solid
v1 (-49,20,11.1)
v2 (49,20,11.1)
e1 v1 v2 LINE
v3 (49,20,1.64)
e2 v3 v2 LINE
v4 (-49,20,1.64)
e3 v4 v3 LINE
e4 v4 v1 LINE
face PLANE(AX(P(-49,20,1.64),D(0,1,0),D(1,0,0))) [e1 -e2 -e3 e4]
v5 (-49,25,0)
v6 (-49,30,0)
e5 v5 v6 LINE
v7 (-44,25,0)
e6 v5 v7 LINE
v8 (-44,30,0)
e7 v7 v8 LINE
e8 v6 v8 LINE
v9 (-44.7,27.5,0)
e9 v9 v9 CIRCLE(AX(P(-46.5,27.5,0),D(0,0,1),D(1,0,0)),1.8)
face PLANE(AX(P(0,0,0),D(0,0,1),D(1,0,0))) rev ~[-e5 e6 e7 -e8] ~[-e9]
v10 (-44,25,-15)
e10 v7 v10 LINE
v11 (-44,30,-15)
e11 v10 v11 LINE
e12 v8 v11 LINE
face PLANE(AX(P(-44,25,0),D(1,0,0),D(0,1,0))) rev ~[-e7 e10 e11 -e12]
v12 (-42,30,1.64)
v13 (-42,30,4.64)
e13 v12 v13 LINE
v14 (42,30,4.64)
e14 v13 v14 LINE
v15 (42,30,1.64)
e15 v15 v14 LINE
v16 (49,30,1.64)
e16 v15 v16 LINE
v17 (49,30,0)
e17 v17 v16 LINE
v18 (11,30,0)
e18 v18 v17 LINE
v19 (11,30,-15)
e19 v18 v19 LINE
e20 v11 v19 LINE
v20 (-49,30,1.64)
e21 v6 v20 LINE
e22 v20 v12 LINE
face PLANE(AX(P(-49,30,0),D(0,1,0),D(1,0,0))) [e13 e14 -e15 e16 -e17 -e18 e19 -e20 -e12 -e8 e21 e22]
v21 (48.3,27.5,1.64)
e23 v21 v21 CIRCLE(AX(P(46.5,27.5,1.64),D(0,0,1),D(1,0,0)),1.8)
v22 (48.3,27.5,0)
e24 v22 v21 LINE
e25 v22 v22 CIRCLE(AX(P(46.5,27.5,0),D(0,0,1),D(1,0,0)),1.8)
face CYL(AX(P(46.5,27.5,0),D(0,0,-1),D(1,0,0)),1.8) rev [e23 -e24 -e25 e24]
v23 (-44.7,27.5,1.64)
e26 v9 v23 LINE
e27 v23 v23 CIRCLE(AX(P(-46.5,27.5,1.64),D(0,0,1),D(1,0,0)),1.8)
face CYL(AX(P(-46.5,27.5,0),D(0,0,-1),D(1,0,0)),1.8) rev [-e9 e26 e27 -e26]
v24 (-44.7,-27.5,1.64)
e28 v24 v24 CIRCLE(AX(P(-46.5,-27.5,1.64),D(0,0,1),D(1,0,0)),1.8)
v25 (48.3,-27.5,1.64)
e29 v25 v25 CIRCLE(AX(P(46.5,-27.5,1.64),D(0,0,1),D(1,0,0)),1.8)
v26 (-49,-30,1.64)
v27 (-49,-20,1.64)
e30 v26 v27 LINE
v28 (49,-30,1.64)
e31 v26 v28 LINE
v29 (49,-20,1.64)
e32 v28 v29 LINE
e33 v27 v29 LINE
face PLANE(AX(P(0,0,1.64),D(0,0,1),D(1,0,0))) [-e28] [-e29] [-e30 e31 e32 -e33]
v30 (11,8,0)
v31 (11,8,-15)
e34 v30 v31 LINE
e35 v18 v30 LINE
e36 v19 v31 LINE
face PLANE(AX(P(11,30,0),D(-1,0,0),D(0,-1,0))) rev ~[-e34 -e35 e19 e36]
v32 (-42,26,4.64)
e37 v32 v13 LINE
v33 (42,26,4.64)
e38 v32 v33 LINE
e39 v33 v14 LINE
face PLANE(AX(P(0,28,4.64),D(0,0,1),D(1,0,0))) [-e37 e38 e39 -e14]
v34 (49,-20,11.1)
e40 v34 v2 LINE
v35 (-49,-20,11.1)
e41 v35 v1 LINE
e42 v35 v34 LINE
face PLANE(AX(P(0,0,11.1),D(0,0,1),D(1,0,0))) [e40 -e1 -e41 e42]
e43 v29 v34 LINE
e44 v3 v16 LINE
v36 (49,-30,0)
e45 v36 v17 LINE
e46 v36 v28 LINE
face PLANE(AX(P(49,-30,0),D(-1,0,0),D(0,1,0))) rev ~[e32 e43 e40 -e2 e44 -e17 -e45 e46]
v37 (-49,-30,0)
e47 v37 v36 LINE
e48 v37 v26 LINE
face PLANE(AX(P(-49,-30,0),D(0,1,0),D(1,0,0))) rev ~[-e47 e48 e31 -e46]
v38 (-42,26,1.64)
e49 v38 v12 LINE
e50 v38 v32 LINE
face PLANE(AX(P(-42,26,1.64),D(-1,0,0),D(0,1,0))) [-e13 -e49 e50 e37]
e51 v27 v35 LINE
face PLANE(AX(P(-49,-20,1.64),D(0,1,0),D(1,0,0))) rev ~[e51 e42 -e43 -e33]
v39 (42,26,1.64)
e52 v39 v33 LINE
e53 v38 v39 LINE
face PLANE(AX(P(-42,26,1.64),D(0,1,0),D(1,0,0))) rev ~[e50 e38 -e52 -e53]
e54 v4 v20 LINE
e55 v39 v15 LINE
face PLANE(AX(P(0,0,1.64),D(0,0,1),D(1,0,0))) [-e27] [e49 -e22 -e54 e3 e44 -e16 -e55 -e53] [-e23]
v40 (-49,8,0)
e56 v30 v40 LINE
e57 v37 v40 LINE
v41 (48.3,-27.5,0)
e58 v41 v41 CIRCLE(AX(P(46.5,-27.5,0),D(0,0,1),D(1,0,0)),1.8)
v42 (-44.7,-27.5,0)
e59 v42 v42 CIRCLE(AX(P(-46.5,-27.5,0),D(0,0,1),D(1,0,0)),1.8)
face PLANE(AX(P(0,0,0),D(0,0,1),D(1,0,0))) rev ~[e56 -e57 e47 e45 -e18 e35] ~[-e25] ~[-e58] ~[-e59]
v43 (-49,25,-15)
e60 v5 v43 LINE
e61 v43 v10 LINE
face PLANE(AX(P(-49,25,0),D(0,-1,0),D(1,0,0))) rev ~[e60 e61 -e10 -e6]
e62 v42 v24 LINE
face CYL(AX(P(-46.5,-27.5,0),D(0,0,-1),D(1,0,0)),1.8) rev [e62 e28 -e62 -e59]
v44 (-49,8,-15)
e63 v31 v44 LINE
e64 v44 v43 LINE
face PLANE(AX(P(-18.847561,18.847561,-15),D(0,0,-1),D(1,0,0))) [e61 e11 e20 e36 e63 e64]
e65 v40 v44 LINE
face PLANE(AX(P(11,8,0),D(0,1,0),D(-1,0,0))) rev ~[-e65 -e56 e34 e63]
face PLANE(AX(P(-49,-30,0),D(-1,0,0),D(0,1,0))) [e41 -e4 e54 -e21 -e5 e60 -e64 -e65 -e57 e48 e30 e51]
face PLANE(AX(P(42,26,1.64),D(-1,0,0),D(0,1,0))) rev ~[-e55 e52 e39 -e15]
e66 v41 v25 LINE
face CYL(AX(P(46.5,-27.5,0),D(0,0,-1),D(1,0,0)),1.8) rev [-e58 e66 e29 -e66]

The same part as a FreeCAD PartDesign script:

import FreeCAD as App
import Part
import Sketcher

V = App.Vector


def add_polygon(sketch, points):
    """Adds a closed chain of lines whose ends are joined by coincident constraints."""
    first, n = sketch.GeometryCount, len(points)
    for a, b in zip(points, points[1:] + points[:1]):
        sketch.addGeometry(Part.LineSegment(App.Vector(*a, 0), App.Vector(*b, 0)), False)
    for i in range(n):
        sketch.addConstraint(Sketcher.Constraint("Coincident", first + i, 2, first + (i + 1) % n, 1))

doc = App.newDocument("Part")
body = doc.addObject("PartDesign::Body", "Body")

sketch1 = body.newObject("Sketcher::SketchObject", "Sketch")
sketch1.AttachmentSupport = (doc.getObject("XY_Plane"), [""])
sketch1.MapMode = "FlatFace"
add_polygon(sketch1, [(-49, 30), (-49, -30), (49, -30), (49, 30)])
sketch1.addGeometry(Part.Circle(V(-46.5, -27.5, 0), V(0, 0, 1), 1.8), False)
sketch1.addGeometry(Part.Circle(V(46.5, -27.5, 0), V(0, 0, 1), 1.8), False)
sketch1.addGeometry(Part.Circle(V(-46.5, 27.5, 0), V(0, 0, 1), 1.8), False)
sketch1.addGeometry(Part.Circle(V(46.5, 27.5, 0), V(0, 0, 1), 1.8), False)
sketch1.addConstraint([
    Sketcher.Constraint("Vertical", 0),
    Sketcher.Constraint("Horizontal", 1),
    Sketcher.Constraint("Vertical", 2),
    Sketcher.Constraint("Horizontal", 3),
    Sketcher.Constraint("Equal", 4, 5),
    Sketcher.Constraint("Equal", 5, 6),
    Sketcher.Constraint("Equal", 6, 7),
    Sketcher.Constraint("Symmetric", 5, 3, 6, 3, -1, 1),
    Sketcher.Constraint("Symmetric", 4, 3, 7, 3, -1, 1),
    Sketcher.Constraint("Symmetric", 0, 2, 2, 2, -1, 1),
    Sketcher.Constraint("Symmetric", 4, 3, 5, 3, -2),
    Sketcher.Constraint("Diameter", 4, 3.6),
    Sketcher.Constraint("DistanceX", 1, 1, 1, 2, 98.0),
    Sketcher.Constraint("DistanceY", 0, 2, 0, 1, 60.0),
    Sketcher.Constraint("DistanceX", 4, 3, 5, 3, 93.0),
    Sketcher.Constraint("DistanceY", 4, 3, 6, 3, 55.0),
])
pad1 = body.newObject("PartDesign::Pad", "Pad")
pad1.Profile = sketch1
pad1.Length = 1.64

sketch2 = body.newObject("Sketcher::SketchObject", "Sketch001")
sketch2.AttachmentSupport = (doc.getObject("XY_Plane"), [""])
sketch2.MapMode = "FlatFace"
sketch2.AttachmentOffset = App.Placement(V(0, 0, 1.64), App.Rotation())
add_polygon(sketch2, [(-49, 20), (-49, -20), (49, -20), (49, 20)])
sketch2.addConstraint([
    Sketcher.Constraint("Vertical", 0),
    Sketcher.Constraint("Horizontal", 1),
    Sketcher.Constraint("Vertical", 2),
    Sketcher.Constraint("Horizontal", 3),
    Sketcher.Constraint("Symmetric", 0, 2, 2, 2, -1, 1),
    Sketcher.Constraint("DistanceX", 1, 1, 1, 2, 98.0),
    Sketcher.Constraint("DistanceY", 0, 2, 0, 1, 40.0),
])
pad2 = body.newObject("PartDesign::Pad", "Pad001")
pad2.Profile = sketch2
pad2.Length = 9.46

sketch3 = body.newObject("Sketcher::SketchObject", "Sketch002")
sketch3.AttachmentSupport = (doc.getObject("XY_Plane"), [""])
sketch3.MapMode = "FlatFace"
sketch3.AttachmentOffset = App.Placement(V(0, 0, 1.64), App.Rotation())
add_polygon(sketch3, [(-42, 30), (-42, 26), (42, 26), (42, 30)])
sketch3.addConstraint([
    Sketcher.Constraint("Vertical", 0),
    Sketcher.Constraint("Horizontal", 1),
    Sketcher.Constraint("Vertical", 2),
    Sketcher.Constraint("Horizontal", 3),
    Sketcher.Constraint("DistanceX", 1, 1, 1, 2, 84.0),
    Sketcher.Constraint("DistanceY", 0, 2, 0, 1, 4.0),
    Sketcher.Constraint("DistanceX", 0, 2, -1, 1, 42.0),
    Sketcher.Constraint("DistanceY", -1, 1, 0, 2, 26.0),
])
pad3 = body.newObject("PartDesign::Pad", "Pad002")
pad3.Profile = sketch3
pad3.Length = 3

sketch4 = body.newObject("Sketcher::SketchObject", "Sketch003")
sketch4.AttachmentSupport = (doc.getObject("XY_Plane"), [""])
sketch4.MapMode = "FlatFace"
add_polygon(sketch4, [(11, 8), (-49, 8), (-49, 25), (-44, 25), (-44, 30), (11, 30)])
sketch4.addConstraint([
    Sketcher.Constraint("Horizontal", 0),
    Sketcher.Constraint("Vertical", 1),
    Sketcher.Constraint("Horizontal", 2),
    Sketcher.Constraint("Vertical", 3),
    Sketcher.Constraint("Horizontal", 4),
    Sketcher.Constraint("Vertical", 5),
    Sketcher.Constraint("Equal", 2, 3),
    Sketcher.Constraint("DistanceX", 0, 2, 0, 1, 60.0),
    Sketcher.Constraint("DistanceX", 2, 1, 2, 2, 5.0),
    Sketcher.Constraint("DistanceY", 1, 1, 1, 2, 17.0),
    Sketcher.Constraint("DistanceX", 0, 2, -1, 1, 49.0),
    Sketcher.Constraint("DistanceY", -1, 1, 0, 2, 8.0),
])
pad4 = body.newObject("PartDesign::Pad", "Pad003")
pad4.Profile = sketch4
pad4.Length = 15
pad4.Reversed = True

doc.recompute()
